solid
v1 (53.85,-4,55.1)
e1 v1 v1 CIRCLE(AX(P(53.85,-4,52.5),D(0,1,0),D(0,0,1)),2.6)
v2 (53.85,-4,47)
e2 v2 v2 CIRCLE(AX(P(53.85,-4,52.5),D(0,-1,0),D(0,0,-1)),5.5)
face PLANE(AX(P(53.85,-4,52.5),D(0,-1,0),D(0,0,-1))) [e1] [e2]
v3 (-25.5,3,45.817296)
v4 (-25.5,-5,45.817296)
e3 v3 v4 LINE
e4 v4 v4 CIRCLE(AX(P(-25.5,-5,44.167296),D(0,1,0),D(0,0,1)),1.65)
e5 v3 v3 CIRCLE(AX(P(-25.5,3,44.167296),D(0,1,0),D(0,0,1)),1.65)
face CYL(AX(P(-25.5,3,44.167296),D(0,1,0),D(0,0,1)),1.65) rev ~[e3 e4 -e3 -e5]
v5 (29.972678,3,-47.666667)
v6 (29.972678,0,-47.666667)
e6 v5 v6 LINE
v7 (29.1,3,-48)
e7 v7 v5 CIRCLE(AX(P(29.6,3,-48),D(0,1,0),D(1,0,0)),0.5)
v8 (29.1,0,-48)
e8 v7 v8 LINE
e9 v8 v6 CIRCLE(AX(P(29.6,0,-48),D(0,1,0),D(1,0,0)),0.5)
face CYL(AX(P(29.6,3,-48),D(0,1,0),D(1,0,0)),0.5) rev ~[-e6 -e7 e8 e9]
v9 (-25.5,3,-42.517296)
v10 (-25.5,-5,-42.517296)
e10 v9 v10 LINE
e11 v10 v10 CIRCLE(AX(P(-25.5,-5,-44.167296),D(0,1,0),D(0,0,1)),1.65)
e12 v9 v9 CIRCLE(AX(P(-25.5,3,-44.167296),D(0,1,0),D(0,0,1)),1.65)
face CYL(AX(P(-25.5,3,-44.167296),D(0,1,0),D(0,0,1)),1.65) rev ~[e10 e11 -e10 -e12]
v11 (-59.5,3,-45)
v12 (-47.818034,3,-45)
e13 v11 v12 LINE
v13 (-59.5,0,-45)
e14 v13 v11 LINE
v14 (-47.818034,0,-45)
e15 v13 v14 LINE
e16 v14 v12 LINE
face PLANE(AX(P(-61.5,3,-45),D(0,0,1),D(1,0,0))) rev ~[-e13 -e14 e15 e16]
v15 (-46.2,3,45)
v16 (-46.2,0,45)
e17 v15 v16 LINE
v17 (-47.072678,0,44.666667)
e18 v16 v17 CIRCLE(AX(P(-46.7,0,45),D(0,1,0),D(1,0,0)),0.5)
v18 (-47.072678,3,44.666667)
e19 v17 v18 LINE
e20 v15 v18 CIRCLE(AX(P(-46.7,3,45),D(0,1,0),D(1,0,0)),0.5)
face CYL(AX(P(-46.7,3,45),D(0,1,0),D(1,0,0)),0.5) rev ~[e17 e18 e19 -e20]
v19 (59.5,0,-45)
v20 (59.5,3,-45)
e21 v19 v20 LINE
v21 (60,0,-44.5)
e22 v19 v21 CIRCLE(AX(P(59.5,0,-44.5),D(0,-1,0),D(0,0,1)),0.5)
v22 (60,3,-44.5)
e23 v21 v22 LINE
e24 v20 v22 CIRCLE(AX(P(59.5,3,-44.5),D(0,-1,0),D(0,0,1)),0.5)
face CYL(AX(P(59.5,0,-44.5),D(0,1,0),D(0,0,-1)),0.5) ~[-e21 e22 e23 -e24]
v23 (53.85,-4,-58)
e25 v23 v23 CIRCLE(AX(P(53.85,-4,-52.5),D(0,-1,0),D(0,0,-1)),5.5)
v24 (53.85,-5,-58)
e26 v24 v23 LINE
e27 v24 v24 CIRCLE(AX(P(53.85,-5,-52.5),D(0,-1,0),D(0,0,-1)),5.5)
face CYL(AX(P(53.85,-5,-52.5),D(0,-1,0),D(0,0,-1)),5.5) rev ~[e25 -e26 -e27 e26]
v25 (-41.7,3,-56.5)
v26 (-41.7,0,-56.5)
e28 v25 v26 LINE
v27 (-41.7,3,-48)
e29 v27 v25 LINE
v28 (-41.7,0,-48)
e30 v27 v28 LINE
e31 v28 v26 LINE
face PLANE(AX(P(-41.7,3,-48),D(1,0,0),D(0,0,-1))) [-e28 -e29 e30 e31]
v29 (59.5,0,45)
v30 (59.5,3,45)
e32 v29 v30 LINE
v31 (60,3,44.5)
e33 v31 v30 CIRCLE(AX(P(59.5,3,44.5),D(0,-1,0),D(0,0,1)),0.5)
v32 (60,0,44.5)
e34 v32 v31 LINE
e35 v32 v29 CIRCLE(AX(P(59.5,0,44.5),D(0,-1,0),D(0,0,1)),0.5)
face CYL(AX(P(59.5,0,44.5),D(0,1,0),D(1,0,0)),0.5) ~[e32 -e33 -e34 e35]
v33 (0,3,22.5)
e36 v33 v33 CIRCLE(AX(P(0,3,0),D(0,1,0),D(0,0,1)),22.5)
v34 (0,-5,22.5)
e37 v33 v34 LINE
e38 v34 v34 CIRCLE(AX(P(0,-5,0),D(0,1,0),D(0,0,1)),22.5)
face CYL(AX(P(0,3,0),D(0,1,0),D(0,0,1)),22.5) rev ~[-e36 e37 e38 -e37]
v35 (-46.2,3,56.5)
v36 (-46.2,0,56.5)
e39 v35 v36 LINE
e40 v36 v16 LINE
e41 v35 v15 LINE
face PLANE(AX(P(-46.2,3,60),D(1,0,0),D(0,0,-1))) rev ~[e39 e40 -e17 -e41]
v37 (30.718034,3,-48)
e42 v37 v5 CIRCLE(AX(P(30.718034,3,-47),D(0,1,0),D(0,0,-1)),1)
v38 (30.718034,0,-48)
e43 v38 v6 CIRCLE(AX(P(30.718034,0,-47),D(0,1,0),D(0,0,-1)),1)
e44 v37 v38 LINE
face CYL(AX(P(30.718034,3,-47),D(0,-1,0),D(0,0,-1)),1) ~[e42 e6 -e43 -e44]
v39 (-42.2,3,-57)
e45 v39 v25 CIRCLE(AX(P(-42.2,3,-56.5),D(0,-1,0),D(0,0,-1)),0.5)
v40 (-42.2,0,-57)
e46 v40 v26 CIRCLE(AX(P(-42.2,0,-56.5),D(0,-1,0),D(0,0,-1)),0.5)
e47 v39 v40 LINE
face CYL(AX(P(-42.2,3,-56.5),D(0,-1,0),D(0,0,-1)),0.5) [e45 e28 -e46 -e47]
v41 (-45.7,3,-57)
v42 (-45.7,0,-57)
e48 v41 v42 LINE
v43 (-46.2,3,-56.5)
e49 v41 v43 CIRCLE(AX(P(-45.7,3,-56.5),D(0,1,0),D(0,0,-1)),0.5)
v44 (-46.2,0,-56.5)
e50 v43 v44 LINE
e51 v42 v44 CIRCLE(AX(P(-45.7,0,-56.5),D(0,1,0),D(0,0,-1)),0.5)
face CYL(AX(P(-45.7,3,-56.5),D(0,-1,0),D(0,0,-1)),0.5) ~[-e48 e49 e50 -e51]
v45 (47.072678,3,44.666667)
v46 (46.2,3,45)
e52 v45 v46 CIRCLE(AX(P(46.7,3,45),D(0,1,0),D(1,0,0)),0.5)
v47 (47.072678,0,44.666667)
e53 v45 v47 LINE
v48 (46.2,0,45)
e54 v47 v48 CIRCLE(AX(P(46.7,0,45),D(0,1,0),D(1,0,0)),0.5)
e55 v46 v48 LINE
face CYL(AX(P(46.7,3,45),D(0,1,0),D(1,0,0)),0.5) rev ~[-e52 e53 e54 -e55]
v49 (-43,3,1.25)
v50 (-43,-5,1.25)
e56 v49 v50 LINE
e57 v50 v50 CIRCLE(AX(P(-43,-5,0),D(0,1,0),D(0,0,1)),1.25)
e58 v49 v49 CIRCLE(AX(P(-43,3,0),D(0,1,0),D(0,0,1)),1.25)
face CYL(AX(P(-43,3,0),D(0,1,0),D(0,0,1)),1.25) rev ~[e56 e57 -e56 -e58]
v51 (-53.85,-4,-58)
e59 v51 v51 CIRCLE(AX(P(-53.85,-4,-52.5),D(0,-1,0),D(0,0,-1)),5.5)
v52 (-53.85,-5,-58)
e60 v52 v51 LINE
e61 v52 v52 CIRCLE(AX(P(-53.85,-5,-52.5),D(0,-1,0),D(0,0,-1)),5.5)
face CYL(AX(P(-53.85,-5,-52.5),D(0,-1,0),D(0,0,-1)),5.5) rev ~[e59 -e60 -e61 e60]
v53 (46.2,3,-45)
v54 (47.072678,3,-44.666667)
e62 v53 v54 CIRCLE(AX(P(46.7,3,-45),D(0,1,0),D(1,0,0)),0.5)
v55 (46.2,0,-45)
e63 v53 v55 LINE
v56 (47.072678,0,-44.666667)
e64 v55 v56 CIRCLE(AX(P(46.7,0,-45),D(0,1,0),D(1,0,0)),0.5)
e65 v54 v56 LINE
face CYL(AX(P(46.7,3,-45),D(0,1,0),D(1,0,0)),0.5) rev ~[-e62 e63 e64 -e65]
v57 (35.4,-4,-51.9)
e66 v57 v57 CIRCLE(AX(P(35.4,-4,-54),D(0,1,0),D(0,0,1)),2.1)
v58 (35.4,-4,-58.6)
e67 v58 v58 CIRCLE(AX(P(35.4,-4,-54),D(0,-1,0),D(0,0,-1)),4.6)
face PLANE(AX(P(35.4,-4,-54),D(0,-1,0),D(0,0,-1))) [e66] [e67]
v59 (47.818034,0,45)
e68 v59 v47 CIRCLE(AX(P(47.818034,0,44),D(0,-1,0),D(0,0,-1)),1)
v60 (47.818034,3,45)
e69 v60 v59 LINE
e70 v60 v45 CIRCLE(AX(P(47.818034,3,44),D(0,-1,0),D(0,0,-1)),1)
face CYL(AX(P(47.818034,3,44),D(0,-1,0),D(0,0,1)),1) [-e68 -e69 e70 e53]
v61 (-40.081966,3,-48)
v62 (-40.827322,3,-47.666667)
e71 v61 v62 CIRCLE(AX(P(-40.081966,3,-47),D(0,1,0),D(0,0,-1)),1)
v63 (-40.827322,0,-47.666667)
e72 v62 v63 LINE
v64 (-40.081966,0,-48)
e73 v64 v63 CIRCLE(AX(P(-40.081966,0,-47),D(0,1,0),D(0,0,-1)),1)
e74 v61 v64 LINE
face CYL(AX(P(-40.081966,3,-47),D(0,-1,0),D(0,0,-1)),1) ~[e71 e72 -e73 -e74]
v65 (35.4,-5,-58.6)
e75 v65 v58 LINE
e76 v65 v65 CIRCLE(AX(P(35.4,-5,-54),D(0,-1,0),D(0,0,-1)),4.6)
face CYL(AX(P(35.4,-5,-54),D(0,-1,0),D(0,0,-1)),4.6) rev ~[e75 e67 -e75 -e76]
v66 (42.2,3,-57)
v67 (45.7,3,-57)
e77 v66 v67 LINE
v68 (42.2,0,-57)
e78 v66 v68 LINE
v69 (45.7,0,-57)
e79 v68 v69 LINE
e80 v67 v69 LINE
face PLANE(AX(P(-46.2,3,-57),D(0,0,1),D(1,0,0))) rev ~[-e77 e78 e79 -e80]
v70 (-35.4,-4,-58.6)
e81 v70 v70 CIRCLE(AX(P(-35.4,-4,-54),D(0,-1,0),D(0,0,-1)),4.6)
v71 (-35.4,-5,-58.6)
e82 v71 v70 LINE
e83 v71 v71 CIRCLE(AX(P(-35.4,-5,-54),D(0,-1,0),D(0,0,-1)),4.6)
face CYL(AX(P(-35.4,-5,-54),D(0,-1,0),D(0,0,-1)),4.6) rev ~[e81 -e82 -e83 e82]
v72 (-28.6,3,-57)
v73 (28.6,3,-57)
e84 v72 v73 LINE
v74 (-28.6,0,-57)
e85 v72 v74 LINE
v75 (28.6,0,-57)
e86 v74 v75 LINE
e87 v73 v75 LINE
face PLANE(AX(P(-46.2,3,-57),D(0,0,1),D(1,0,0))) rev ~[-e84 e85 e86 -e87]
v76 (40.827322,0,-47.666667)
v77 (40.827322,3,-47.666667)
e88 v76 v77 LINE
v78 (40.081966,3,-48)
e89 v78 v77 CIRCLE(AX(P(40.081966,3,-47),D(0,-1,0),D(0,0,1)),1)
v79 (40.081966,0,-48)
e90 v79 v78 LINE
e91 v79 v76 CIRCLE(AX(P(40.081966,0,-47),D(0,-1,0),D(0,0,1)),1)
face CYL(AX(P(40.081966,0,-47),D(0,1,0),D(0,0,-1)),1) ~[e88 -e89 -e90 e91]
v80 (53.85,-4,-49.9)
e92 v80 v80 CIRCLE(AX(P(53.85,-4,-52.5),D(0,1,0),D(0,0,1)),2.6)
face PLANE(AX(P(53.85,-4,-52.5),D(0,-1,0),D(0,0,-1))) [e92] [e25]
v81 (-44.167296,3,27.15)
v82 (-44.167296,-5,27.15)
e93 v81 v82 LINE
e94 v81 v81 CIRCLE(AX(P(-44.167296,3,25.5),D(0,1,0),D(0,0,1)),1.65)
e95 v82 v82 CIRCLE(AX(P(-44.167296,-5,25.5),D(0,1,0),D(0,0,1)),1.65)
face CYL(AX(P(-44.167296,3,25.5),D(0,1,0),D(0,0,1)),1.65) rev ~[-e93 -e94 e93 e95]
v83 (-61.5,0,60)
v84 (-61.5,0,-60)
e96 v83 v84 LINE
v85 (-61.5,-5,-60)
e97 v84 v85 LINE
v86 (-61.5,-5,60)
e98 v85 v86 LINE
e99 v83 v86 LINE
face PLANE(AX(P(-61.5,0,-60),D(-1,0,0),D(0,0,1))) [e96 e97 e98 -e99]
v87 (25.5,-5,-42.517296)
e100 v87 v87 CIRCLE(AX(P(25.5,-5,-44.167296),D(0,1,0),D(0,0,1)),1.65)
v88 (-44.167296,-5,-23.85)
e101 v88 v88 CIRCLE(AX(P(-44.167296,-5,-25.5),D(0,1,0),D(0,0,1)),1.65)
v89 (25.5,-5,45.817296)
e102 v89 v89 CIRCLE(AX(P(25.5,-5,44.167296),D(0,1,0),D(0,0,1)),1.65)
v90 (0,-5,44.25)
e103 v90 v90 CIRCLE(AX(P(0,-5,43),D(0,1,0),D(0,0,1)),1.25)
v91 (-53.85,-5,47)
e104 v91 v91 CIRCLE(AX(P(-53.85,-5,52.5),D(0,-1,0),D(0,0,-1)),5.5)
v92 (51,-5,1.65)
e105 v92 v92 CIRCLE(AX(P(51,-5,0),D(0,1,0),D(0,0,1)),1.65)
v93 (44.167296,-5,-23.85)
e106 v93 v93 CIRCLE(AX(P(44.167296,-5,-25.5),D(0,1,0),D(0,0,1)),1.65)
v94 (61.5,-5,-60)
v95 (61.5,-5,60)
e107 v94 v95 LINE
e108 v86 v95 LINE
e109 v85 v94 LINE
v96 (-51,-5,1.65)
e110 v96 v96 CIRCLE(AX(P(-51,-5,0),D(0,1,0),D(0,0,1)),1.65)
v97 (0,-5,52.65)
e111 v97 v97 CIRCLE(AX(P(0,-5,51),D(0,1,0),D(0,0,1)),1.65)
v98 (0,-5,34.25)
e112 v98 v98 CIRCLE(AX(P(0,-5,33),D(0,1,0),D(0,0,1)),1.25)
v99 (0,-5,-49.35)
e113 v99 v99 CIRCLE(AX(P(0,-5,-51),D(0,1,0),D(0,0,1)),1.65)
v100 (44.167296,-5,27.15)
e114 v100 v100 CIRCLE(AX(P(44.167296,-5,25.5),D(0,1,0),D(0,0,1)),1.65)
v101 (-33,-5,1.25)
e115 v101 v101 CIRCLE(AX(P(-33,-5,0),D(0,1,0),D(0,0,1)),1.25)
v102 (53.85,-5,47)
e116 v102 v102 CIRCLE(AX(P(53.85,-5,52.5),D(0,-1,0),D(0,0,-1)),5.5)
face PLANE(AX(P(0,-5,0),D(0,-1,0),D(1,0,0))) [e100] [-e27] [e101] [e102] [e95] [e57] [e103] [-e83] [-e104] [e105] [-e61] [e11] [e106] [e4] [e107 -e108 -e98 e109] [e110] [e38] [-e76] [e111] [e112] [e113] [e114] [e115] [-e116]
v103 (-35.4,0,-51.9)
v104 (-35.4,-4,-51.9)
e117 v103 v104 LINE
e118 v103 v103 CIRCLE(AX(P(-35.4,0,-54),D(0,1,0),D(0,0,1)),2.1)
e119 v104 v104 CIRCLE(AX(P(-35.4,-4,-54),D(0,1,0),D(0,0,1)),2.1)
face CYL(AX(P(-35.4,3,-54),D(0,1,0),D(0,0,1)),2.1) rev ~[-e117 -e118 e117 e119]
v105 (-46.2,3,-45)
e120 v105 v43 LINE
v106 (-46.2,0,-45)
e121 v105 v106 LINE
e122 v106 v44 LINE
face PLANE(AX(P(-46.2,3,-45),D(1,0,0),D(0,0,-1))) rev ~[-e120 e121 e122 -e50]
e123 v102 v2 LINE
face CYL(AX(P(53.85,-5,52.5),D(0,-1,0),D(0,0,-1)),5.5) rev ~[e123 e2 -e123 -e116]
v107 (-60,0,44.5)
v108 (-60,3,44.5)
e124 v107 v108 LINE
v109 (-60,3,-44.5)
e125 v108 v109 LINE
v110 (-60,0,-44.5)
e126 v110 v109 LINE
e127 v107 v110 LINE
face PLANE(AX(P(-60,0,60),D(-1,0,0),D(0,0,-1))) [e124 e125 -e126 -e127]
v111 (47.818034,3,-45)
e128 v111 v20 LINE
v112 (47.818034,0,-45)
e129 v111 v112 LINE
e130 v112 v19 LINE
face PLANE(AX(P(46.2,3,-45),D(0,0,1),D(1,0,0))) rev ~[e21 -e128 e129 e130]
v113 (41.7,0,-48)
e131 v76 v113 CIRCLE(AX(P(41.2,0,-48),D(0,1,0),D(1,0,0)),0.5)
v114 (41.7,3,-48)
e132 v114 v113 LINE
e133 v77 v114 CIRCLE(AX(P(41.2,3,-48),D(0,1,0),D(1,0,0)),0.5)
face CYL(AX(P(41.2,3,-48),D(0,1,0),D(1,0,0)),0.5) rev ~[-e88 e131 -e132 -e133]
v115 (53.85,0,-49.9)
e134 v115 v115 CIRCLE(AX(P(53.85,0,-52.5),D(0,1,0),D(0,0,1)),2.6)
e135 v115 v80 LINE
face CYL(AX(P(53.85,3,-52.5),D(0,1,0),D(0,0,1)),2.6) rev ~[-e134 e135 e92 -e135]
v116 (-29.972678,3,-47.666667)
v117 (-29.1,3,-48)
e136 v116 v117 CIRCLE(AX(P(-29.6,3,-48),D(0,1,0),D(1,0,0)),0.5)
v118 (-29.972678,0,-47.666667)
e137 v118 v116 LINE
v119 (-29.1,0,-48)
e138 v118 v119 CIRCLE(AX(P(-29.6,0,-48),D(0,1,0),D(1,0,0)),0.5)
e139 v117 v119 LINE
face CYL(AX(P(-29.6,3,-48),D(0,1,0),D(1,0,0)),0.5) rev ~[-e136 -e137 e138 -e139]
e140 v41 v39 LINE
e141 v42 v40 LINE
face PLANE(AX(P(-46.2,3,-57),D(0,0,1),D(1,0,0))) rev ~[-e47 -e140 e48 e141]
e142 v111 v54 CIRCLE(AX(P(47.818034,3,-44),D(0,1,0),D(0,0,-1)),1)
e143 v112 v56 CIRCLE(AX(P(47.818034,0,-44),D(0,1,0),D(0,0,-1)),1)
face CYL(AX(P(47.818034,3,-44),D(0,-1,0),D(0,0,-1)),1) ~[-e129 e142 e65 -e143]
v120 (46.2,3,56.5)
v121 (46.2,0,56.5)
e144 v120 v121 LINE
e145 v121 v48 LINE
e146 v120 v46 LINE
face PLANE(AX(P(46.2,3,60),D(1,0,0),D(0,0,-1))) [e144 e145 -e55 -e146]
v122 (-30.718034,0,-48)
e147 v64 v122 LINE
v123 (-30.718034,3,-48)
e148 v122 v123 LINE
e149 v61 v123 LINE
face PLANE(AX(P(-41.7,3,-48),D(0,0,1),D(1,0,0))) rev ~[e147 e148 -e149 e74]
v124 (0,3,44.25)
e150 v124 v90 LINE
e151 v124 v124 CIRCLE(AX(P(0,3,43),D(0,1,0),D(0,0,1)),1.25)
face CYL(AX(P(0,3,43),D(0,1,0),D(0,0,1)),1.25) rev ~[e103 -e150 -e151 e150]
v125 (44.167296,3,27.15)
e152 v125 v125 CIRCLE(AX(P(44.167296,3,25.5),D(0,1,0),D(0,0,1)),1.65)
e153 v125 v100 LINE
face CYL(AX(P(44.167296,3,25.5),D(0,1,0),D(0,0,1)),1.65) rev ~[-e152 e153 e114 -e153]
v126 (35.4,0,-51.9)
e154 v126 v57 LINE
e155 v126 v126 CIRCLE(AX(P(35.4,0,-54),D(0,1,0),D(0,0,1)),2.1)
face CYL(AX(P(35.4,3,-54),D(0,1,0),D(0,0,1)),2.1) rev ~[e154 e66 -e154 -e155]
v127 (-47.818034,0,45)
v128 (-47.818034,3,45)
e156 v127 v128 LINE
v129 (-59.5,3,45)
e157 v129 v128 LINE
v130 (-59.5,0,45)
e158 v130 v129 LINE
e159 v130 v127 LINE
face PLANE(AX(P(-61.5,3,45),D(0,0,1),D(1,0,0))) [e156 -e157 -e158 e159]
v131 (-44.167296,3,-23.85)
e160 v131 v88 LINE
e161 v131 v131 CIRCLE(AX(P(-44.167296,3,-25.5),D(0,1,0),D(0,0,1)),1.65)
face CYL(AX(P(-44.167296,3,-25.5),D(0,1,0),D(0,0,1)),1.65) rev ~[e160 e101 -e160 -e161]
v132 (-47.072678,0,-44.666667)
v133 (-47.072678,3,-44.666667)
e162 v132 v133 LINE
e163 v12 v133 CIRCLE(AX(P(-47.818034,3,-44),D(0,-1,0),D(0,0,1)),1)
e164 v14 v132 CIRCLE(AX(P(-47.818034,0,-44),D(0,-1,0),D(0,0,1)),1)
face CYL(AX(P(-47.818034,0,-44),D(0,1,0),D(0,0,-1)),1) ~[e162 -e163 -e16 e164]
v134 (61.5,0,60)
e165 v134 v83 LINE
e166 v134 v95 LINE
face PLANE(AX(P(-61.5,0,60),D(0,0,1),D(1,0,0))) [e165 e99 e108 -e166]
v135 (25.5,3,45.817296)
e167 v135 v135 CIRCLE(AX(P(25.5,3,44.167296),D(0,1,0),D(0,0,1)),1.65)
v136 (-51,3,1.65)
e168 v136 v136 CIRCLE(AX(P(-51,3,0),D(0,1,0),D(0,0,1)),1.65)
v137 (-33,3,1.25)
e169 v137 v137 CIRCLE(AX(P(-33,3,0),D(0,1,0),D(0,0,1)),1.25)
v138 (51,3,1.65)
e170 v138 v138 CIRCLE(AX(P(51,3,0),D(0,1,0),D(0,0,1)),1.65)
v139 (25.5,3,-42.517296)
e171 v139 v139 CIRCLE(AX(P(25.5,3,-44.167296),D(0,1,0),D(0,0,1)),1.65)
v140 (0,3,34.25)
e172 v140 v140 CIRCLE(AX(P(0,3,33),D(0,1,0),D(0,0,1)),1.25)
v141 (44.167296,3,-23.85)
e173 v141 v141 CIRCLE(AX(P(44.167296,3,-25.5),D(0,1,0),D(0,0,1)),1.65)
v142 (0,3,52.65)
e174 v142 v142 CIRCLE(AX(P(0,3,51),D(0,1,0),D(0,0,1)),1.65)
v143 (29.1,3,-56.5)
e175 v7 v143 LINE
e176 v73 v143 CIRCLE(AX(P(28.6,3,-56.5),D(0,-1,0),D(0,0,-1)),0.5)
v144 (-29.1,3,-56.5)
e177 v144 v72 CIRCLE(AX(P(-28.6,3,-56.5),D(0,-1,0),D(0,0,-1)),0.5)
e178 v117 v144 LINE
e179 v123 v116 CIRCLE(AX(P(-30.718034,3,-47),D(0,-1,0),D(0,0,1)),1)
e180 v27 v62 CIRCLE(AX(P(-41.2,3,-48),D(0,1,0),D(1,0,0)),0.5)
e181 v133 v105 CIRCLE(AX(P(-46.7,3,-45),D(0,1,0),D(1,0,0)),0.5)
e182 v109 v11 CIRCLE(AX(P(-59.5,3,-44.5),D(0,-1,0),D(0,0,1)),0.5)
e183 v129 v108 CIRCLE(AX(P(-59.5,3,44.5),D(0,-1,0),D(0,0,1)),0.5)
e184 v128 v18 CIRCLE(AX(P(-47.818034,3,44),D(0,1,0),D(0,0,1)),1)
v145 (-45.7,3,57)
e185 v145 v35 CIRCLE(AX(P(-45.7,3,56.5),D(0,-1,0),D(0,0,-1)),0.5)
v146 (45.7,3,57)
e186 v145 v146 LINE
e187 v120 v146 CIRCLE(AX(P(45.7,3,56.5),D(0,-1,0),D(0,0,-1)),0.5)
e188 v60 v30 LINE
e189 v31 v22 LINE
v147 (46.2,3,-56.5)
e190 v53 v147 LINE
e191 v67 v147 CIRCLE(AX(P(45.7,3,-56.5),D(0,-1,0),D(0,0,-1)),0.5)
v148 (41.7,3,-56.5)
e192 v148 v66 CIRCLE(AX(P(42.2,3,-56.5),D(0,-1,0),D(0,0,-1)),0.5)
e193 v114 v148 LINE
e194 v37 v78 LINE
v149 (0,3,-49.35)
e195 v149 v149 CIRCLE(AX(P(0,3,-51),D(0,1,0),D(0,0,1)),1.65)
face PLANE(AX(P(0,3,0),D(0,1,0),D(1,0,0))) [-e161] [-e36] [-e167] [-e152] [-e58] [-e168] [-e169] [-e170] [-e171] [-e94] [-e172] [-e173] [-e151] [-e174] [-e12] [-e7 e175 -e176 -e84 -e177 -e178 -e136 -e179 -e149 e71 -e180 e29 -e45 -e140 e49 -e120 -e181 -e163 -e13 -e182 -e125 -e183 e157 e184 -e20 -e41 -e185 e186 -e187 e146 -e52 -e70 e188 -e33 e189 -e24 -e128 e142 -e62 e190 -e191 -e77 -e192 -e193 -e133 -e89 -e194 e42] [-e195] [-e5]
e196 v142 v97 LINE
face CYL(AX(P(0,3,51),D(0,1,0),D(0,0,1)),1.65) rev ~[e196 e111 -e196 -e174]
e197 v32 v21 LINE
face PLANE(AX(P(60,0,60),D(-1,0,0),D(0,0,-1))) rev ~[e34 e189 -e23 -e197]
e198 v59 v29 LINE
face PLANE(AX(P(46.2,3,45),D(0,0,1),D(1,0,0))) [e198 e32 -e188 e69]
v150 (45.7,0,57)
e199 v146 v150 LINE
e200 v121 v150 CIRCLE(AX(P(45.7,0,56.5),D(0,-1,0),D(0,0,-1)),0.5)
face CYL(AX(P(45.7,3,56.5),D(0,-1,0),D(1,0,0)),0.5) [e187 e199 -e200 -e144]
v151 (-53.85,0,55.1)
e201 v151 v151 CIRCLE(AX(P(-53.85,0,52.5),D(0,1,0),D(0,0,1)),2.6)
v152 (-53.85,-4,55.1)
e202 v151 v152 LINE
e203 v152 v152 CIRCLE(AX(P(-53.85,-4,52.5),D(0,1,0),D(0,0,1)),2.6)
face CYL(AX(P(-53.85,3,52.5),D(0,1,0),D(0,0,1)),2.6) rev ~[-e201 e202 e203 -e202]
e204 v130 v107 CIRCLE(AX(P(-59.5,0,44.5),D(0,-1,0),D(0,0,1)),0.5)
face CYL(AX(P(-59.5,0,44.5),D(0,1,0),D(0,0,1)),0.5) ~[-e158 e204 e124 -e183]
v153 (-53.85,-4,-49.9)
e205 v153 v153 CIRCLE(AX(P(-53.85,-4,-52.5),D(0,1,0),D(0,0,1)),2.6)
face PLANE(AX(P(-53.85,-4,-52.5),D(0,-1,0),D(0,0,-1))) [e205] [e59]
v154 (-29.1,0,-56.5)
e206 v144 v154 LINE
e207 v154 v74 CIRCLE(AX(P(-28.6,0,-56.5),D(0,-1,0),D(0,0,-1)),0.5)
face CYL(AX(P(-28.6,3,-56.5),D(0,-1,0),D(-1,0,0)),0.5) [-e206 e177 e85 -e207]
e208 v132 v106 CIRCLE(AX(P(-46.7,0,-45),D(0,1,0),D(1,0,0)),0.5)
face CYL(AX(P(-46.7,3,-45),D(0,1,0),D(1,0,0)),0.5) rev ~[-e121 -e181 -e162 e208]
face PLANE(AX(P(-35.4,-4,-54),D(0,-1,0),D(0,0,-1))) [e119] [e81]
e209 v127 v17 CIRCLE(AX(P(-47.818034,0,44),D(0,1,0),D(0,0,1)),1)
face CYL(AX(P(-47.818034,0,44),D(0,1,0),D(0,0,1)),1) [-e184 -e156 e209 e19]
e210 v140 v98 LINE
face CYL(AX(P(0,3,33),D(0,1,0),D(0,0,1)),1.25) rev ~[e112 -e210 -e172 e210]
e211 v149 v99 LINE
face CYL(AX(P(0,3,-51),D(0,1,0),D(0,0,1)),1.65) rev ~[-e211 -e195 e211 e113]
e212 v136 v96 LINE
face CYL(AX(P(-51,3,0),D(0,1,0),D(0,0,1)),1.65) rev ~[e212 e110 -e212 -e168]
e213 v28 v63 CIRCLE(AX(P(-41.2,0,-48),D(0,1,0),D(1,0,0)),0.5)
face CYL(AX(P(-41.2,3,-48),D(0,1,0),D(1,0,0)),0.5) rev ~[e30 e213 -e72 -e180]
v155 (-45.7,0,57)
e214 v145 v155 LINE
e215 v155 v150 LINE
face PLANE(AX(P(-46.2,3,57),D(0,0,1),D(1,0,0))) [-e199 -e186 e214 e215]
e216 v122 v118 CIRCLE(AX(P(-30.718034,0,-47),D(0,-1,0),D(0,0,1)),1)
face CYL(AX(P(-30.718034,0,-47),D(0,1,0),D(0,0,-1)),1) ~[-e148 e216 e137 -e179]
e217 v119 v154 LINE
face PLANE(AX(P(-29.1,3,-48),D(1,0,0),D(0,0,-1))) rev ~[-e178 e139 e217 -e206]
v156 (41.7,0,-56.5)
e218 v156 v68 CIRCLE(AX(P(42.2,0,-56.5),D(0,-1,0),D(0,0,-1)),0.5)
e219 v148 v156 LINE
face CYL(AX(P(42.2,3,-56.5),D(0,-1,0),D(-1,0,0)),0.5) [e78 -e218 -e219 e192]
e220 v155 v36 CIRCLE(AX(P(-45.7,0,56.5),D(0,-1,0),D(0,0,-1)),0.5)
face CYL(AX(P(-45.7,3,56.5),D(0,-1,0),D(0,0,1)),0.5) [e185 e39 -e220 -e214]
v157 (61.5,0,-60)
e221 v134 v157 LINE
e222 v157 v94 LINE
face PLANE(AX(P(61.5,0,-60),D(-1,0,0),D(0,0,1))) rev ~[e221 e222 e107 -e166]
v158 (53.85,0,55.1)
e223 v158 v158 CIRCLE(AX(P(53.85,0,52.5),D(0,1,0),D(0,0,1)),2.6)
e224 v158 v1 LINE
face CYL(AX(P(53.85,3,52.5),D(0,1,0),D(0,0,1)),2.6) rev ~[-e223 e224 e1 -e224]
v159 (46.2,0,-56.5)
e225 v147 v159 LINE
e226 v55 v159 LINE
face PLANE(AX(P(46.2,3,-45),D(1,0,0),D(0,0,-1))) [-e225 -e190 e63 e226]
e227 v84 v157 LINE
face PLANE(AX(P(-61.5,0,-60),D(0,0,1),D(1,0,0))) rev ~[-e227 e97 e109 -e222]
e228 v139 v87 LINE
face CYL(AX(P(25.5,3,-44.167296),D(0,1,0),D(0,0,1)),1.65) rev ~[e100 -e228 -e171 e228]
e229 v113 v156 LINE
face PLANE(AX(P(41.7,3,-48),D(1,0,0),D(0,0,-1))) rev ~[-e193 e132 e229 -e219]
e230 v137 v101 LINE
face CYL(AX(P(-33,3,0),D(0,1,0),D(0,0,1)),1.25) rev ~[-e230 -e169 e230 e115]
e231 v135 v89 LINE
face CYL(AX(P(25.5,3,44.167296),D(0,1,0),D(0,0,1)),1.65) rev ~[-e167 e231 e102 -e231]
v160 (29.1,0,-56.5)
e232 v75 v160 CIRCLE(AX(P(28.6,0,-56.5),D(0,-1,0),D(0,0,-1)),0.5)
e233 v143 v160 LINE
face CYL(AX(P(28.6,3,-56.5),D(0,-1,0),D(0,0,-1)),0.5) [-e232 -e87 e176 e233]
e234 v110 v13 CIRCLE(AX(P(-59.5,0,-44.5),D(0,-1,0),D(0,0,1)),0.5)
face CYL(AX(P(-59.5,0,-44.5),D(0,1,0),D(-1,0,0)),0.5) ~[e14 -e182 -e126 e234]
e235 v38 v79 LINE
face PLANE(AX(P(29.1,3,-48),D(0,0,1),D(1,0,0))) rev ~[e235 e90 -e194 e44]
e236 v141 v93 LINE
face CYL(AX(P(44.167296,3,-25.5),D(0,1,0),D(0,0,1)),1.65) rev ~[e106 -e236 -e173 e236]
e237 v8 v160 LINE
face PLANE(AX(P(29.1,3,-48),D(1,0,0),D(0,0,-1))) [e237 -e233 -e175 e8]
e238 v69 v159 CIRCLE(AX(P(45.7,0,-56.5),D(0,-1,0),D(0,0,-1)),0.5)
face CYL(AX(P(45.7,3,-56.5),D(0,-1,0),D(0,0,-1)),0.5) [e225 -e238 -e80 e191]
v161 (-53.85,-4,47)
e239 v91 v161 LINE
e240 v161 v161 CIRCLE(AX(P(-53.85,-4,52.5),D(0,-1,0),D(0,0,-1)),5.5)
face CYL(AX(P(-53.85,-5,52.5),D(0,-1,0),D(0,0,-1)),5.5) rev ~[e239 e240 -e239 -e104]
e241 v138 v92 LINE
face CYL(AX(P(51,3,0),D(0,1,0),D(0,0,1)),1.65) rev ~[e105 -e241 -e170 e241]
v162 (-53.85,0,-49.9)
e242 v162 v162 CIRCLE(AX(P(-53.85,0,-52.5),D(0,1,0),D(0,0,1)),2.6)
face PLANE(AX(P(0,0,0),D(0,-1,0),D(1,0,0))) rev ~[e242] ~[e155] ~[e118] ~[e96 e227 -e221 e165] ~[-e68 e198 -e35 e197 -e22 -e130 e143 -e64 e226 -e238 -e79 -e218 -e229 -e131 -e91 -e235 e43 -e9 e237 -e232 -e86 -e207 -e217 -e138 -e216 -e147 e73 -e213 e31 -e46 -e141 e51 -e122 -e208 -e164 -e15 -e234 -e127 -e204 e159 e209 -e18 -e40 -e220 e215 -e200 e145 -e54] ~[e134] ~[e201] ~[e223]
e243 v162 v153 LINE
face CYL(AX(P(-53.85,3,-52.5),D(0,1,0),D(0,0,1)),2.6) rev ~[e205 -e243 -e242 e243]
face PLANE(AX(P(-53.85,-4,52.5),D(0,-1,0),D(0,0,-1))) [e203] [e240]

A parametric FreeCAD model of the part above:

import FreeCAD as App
import Part
import Sketcher

V = App.Vector


def edges_at(feature, points):
    """Names of the edges that pass closest to the given points."""
    edges = feature.Shape.Edges
    near = lambda p: min(range(len(edges)), key=lambda i: edges[i].distToShape(Part.Vertex(*p))[0])
    return sorted({f"Edge{near(p) + 1}" for p in points})

doc = App.newDocument("Part")
params = doc.addObject("Spreadsheet::Sheet", "Params")
for row, (alias, value) in enumerate([
    ("sketch1_width", "120 mm"),
    ("pad1_length", "3 mm"),
    ("sketch2_width", "123 mm"),
    ("sketch2_height", "120 mm"),
    ("pad2_length", "5 mm"),
    ("sketch3_diameter", "3.3 mm"),
    ("sketch4_height", "15 mm"),
    ("sketch4_height2", "12 mm"),
    ("sketch4_width", "15.3 mm"),
    ("sketch4_width2", "12.6 mm"),
    ("pocket2_length", "3 mm"),
    ("sketch5_diameter", "5.2 mm"),
    ("sketch5_diameter2", "4.2 mm"),
    ("sketch6_diameter", "11 mm"),
    ("sketch6_diameter2", "9.2 mm"),
    ("pocket4_length", "1 mm"),
    ("sketch7_diameter", "45 mm"),
    ("sketch8_diameter", "2.5 mm"),
    ("sketch9_height", "3 mm"),
    ("sketch9_width", "92.4 mm"),
    ("pocket7_length", "3 mm"),
    ("fillet_radius", "0.5 mm"),
    ("sketch10_diameter", "1 mm"),
    ("pocket8_length", "3 mm"),
    ("fillet2_radius", "1 mm"),
], start=1):
    params.set(f"A{row}", alias)
    params.set(f"B{row}", "=" + value)
    params.setAlias(f"B{row}", alias)

body = doc.addObject("PartDesign::Body", "Body")

sketch1 = body.newObject("Sketcher::SketchObject", "Sketch")
sketch1.AttachmentSupport = (doc.getObject("XZ_Plane"), [""])
sketch1.MapMode = "FlatFace"
sketch1.addGeometry(Part.LineSegment(V(-60, -60, 0), V(-60, 60, 0)), False)
sketch1.addGeometry(Part.LineSegment(V(-60, 60, 0), V(60, 60, 0)), False)
sketch1.addGeometry(Part.LineSegment(V(60, 60, 0), V(60, -60, 0)), False)
sketch1.addGeometry(Part.LineSegment(V(60, -60, 0), V(-60, -60, 0)), False)
sketch1.addConstraint(Sketcher.Constraint("Coincident", 0, 2, 1, 1))
sketch1.addConstraint(Sketcher.Constraint("Coincident", 1, 2, 2, 1))
sketch1.addConstraint(Sketcher.Constraint("Coincident", 2, 2, 3, 1))
sketch1.addConstraint(Sketcher.Constraint("Coincident", 3, 2, 0, 1))
sketch1.addConstraint(Sketcher.Constraint("Vertical", 0))
sketch1.addConstraint(Sketcher.Constraint("Horizontal", 1))
sketch1.addConstraint(Sketcher.Constraint("Vertical", 2))
sketch1.addConstraint(Sketcher.Constraint("Horizontal", 3))
sketch1.addConstraint(Sketcher.Constraint("Symmetric", 0, 2, 2, 2, -1, 1))
sketch1.addConstraint(Sketcher.Constraint("Equal", 3, 0))
sketch1.addConstraint(Sketcher.Constraint("DistanceX", 1, 1, 1, 2, 120.0))
sketch1.setExpression("Constraints[10]", "Params.sketch1_width")
pad1 = body.newObject("PartDesign::Pad", "Pad")
pad1.Profile = sketch1
pad1.setExpression("Length", "Params.pad1_length")
pad1.Reversed = True

sketch2 = body.newObject("Sketcher::SketchObject", "Sketch001")
sketch2.AttachmentSupport = (doc.getObject("XZ_Plane"), [""])
sketch2.MapMode = "FlatFace"
sketch2.addGeometry(Part.LineSegment(V(-62, 60, 0), V(-62, -60, 0)), False)
sketch2.addGeometry(Part.LineSegment(V(-62, -60, 0), V(62, -60, 0)), False)
sketch2.addGeometry(Part.LineSegment(V(62, -60, 0), V(62, 60, 0)), False)
sketch2.addGeometry(Part.LineSegment(V(62, 60, 0), V(-62, 60, 0)), False)
sketch2.addConstraint(Sketcher.Constraint("Coincident", 0, 2, 1, 1))
sketch2.addConstraint(Sketcher.Constraint("Coincident", 1, 2, 2, 1))
sketch2.addConstraint(Sketcher.Constraint("Coincident", 2, 2, 3, 1))
sketch2.addConstraint(Sketcher.Constraint("Coincident", 3, 2, 0, 1))
sketch2.addConstraint(Sketcher.Constraint("Vertical", 0))
sketch2.addConstraint(Sketcher.Constraint("Horizontal", 1))
sketch2.addConstraint(Sketcher.Constraint("Vertical", 2))
sketch2.addConstraint(Sketcher.Constraint("Horizontal", 3))
sketch2.addConstraint(Sketcher.Constraint("Symmetric", 0, 2, 2, 2, -1, 1))
sketch2.addConstraint(Sketcher.Constraint("DistanceX", 1, 1, 1, 2, 123.0))
sketch2.addConstraint(Sketcher.Constraint("DistanceY", 0, 2, 0, 1, 120.0))
sketch2.setExpression("Constraints[9]", "Params.sketch2_width")
sketch2.setExpression("Constraints[10]", "Params.sketch2_height")
pad2 = body.newObject("PartDesign::Pad", "Pad001")
pad2.Profile = sketch2
pad2.setExpression("Length", "Params.pad2_length")

sketch3 = body.newObject("Sketcher::SketchObject", "Sketch002")
sketch3.AttachmentSupport = (doc.getObject("XZ_Plane"), [""])
sketch3.MapMode = "FlatFace"
sketch3.AttachmentOffset = App.Placement(V(0, 0, -3), App.Rotation())
sketch3.addGeometry(Part.Circle(V(-51, 0, 0), V(0, 0, 1), 1.6), False)
sketch3.addGeometry(Part.Circle(V(-44.2, 25.5, 0), V(0, 0, 1), 1.6), False)
sketch3.addGeometry(Part.Circle(V(-25.5, 44.2, 0), V(0, 0, 1), 1.6), False)
sketch3.addGeometry(Part.Circle(V(0, 51, 0), V(0, 0, 1), 1.6), False)
sketch3.addGeometry(Part.Circle(V(25.5, 44.2, 0), V(0, 0, 1), 1.6), False)
sketch3.addGeometry(Part.Circle(V(44.2, 25.5, 0), V(0, 0, 1), 1.6), False)
sketch3.addGeometry(Part.Circle(V(-25.5, -44.2, 0), V(0, 0, 1), 1.6), False)
sketch3.addGeometry(Part.Circle(V(-44.2, -25.5, 0), V(0, 0, 1), 1.6), False)
sketch3.addGeometry(Part.Circle(V(0, -51, 0), V(0, 0, 1), 1.6), False)
sketch3.addGeometry(Part.Circle(V(25.5, -44.2, 0), V(0, 0, 1), 1.6), False)
sketch3.addGeometry(Part.Circle(V(44.2, -25.5, 0), V(0, 0, 1), 1.6), False)
sketch3.addGeometry(Part.Circle(V(51, 0, 0), V(0, 0, 1), 1.6), False)
sketch3.addConstraint(Sketcher.Constraint("Equal", 0, 1))
sketch3.addConstraint(Sketcher.Constraint("Equal", 1, 2))
sketch3.addConstraint(Sketcher.Constraint("Equal", 2, 3))
sketch3.addConstraint(Sketcher.Constraint("Equal", 3, 4))
sketch3.addConstraint(Sketcher.Constraint("Equal", 4, 5))
sketch3.addConstraint(Sketcher.Constraint("Equal", 5, 6))
sketch3.addConstraint(Sketcher.Constraint("Equal", 6, 7))
sketch3.addConstraint(Sketcher.Constraint("Equal", 7, 8))
sketch3.addConstraint(Sketcher.Constraint("Equal", 8, 9))
sketch3.addConstraint(Sketcher.Constraint("Equal", 9, 10))
sketch3.addConstraint(Sketcher.Constraint("Equal", 10, 11))
sketch3.addConstraint(Sketcher.Constraint("Symmetric", 4, 3, 6, 3, -1, 1))
sketch3.addConstraint(Sketcher.Constraint("Symmetric", 5, 3, 7, 3, -1, 1))
sketch3.addConstraint(Sketcher.Constraint("Symmetric", 3, 3, 8, 3, -1, 1))
sketch3.addConstraint(Sketcher.Constraint("Symmetric", 2, 3, 9, 3, -1, 1))
sketch3.addConstraint(Sketcher.Constraint("Symmetric", 1, 3, 10, 3, -1, 1))
sketch3.addConstraint(Sketcher.Constraint("Symmetric", 0, 3, 11, 3, -1, 1))
sketch3.addConstraint(Sketcher.Constraint("Symmetric", 2, 3, 4, 3, -2))
sketch3.addConstraint(Sketcher.Constraint("Symmetric", 1, 3, 5, 3, -2))
sketch3.addConstraint(Sketcher.Constraint("PointOnObject", 0, 3, -1))
sketch3.addConstraint(Sketcher.Constraint("PointOnObject", 3, 3, -2))
sketch3.addConstraint(Sketcher.Constraint("Diameter", 0, 3.3))
sketch3.addConstraint(Sketcher.Constraint("DistanceX", 0, 3, -1, 1, 51.0))
sketch3.addConstraint(Sketcher.Constraint("DistanceY", -1, 1, 3, 3, 51.0))
sketch3.addConstraint(Sketcher.Constraint("DistanceX", 2, 3, 4, 3, 51.0))
sketch3.addConstraint(Sketcher.Constraint("DistanceY", 7, 3, 1, 3, 51.0))
sketch3.addConstraint(Sketcher.Constraint("DistanceX", 1, 3, 5, 3, 88.334591))
sketch3.addConstraint(Sketcher.Constraint("DistanceY", 6, 3, 2, 3, 88.334591))
sketch3.setExpression("Constraints[21]", "Params.sketch3_diameter")
pocket1 = body.newObject("PartDesign::Pocket", "Pocket")
pocket1.Profile = sketch3
pocket1.Type = "ThroughAll"
pocket1.Reversed = True

sketch4 = body.newObject("Sketcher::SketchObject", "Sketch003")
sketch4.AttachmentSupport = (doc.getObject("XZ_Plane"), [""])
sketch4.MapMode = "FlatFace"
sketch4.AttachmentOffset = App.Placement(V(0, 0, -3), App.Rotation())
sketch4.addGeometry(Part.LineSegment(V(-62, -60, 0), V(-62, -45, 0)), False)
sketch4.addGeometry(Part.LineSegment(V(-62, -45, 0), V(-46, -45, 0)), False)
sketch4.addGeometry(Part.LineSegment(V(-46, -45, 0), V(-46, -60, 0)), False)
sketch4.addGeometry(Part.LineSegment(V(-46, -60, 0), V(-62, -60, 0)), False)
sketch4.addGeometry(Part.LineSegment(V(46, -60, 0), V(46, -45, 0)), False)
sketch4.addGeometry(Part.LineSegment(V(46, -45, 0), V(62, -45, 0)), False)
sketch4.addGeometry(Part.LineSegment(V(62, -45, 0), V(62, -60, 0)), False)
sketch4.addGeometry(Part.LineSegment(V(62, -60, 0), V(46, -60, 0)), False)
sketch4.addGeometry(Part.LineSegment(V(-42, -60, 0), V(-42, -48, 0)), False)
sketch4.addGeometry(Part.LineSegment(V(-42, -48, 0), V(-29, -48, 0)), False)
sketch4.addGeometry(Part.LineSegment(V(-29, -48, 0), V(-29, -60, 0)), False)
sketch4.addGeometry(Part.LineSegment(V(-29, -60, 0), V(-42, -60, 0)), False)
sketch4.addGeometry(Part.LineSegment(V(29, -60, 0), V(29, -48, 0)), False)
sketch4.addGeometry(Part.LineSegment(V(29, -48, 0), V(42, -48, 0)), False)
sketch4.addGeometry(Part.LineSegment(V(42, -48, 0), V(42, -60, 0)), False)
sketch4.addGeometry(Part.LineSegment(V(42, -60, 0), V(29, -60, 0)), False)
sketch4.addGeometry(Part.LineSegment(V(-62, 45, 0), V(-62, 60, 0)), False)
sketch4.addGeometry(Part.LineSegment(V(-62, 60, 0), V(-46, 60, 0)), False)
sketch4.addGeometry(Part.LineSegment(V(-46, 60, 0), V(-46, 45, 0)), False)
sketch4.addGeometry(Part.LineSegment(V(-46, 45, 0), V(-62, 45, 0)), False)
sketch4.addGeometry(Part.LineSegment(V(46, 45, 0), V(46, 60, 0)), False)
sketch4.addGeometry(Part.LineSegment(V(46, 60, 0), V(62, 60, 0)), False)
sketch4.addGeometry(Part.LineSegment(V(62, 60, 0), V(62, 45, 0)), False)
sketch4.addGeometry(Part.LineSegment(V(62, 45, 0), V(46, 45, 0)), False)
sketch4.addConstraint(Sketcher.Constraint("Coincident", 0, 2, 1, 1))
sketch4.addConstraint(Sketcher.Constraint("Coincident", 1, 2, 2, 1))
sketch4.addConstraint(Sketcher.Constraint("Coincident", 2, 2, 3, 1))
sketch4.addConstraint(Sketcher.Constraint("Coincident", 3, 2, 0, 1))
sketch4.addConstraint(Sketcher.Constraint("Coincident", 4, 2, 5, 1))
sketch4.addConstraint(Sketcher.Constraint("Coincident", 5, 2, 6, 1))
sketch4.addConstraint(Sketcher.Constraint("Coincident", 6, 2, 7, 1))
sketch4.addConstraint(Sketcher.Constraint("Coincident", 7, 2, 4, 1))
sketch4.addConstraint(Sketcher.Constraint("Coincident", 8, 2, 9, 1))
sketch4.addConstraint(Sketcher.Constraint("Coincident", 9, 2, 10, 1))
sketch4.addConstraint(Sketcher.Constraint("Coincident", 10, 2, 11, 1))
sketch4.addConstraint(Sketcher.Constraint("Coincident", 11, 2, 8, 1))
sketch4.addConstraint(Sketcher.Constraint("Coincident", 12, 2, 13, 1))
sketch4.addConstraint(Sketcher.Constraint("Coincident", 13, 2, 14, 1))
sketch4.addConstraint(Sketcher.Constraint("Coincident", 14, 2, 15, 1))
sketch4.addConstraint(Sketcher.Constraint("Coincident", 15, 2, 12, 1))
sketch4.addConstraint(Sketcher.Constraint("Coincident", 16, 2, 17, 1))
sketch4.addConstraint(Sketcher.Constraint("Coincident", 17, 2, 18, 1))
sketch4.addConstraint(Sketcher.Constraint("Coincident", 18, 2, 19, 1))
sketch4.addConstraint(Sketcher.Constraint("Coincident", 19, 2, 16, 1))
sketch4.addConstraint(Sketcher.Constraint("Coincident", 20, 2, 21, 1))
sketch4.addConstraint(Sketcher.Constraint("Coincident", 21, 2, 22, 1))
sketch4.addConstraint(Sketcher.Constraint("Coincident", 22, 2, 23, 1))
sketch4.addConstraint(Sketcher.Constraint("Coincident", 23, 2, 20, 1))
sketch4.addConstraint(Sketcher.Constraint("Vertical", 0))
sketch4.addConstraint(Sketcher.Constraint("Horizontal", 1))
sketch4.addConstraint(Sketcher.Constraint("Vertical", 2))
sketch4.addConstraint(Sketcher.Constraint("Horizontal", 3))
sketch4.addConstraint(Sketcher.Constraint("Vertical", 4))
sketch4.addConstraint(Sketcher.Constraint("Horizontal", 5))
sketch4.addConstraint(Sketcher.Constraint("Vertical", 6))
sketch4.addConstraint(Sketcher.Constraint("Horizontal", 7))
sketch4.addConstraint(Sketcher.Constraint("Vertical", 8))
sketch4.addConstraint(Sketcher.Constraint("Horizontal", 9))
sketch4.addConstraint(Sketcher.Constraint("Vertical", 10))
sketch4.addConstraint(Sketcher.Constraint("Horizontal", 11))
sketch4.addConstraint(Sketcher.Constraint("Vertical", 12))
sketch4.addConstraint(Sketcher.Constraint("Horizontal", 13))
sketch4.addConstraint(Sketcher.Constraint("Vertical", 14))
sketch4.addConstraint(Sketcher.Constraint("Horizontal", 15))
sketch4.addConstraint(Sketcher.Constraint("Vertical", 16))
sketch4.addConstraint(Sketcher.Constraint("Horizontal", 17))
sketch4.addConstraint(Sketcher.Constraint("Vertical", 18))
sketch4.addConstraint(Sketcher.Constraint("Horizontal", 19))
sketch4.addConstraint(Sketcher.Constraint("Vertical", 20))
sketch4.addConstraint(Sketcher.Constraint("Horizontal", 21))
sketch4.addConstraint(Sketcher.Constraint("Vertical", 22))
sketch4.addConstraint(Sketcher.Constraint("Horizontal", 23))
sketch4.addConstraint(Sketcher.Constraint("Symmetric", 6, 2, 16, 2, -1, 1))
sketch4.addConstraint(Sketcher.Constraint("Symmetric", 4, 2, 18, 2, -1, 1))
sketch4.addConstraint(Sketcher.Constraint("Symmetric", 2, 2, 20, 2, -1, 1))
sketch4.addConstraint(Sketcher.Constraint("Symmetric", 0, 2, 22, 2, -1, 1))
sketch4.addConstraint(Sketcher.Constraint("Symmetric", 1, 2, 4, 2, -2))
sketch4.addConstraint(Sketcher.Constraint("Symmetric", 3, 2, 6, 2, -2))
sketch4.addConstraint(Sketcher.Constraint("Symmetric", 9, 2, 12, 2, -2))
sketch4.addConstraint(Sketcher.Constraint("Symmetric", 11, 2, 14, 2, -2))
sketch4.addConstraint(Sketcher.Constraint("Horizontal", 7, 2, 10, 2))
sketch4.addConstraint(Sketcher.Constraint("DistanceY", 0, 1, 0, 2, 15.0))
sketch4.addConstraint(Sketcher.Constraint("DistanceY", 8, 1, 8, 2, 12.0))
sketch4.addConstraint(Sketcher.Constraint("DistanceX", 1, 1, 1, 2, 15.3))
sketch4.addConstraint(Sketcher.Constraint("DistanceX", 9, 1, 9, 2, 12.6))
sketch4.addConstraint(Sketcher.Constraint("DistanceY", 0, 2, -1, 1, 45.0))
sketch4.addConstraint(Sketcher.Constraint("DistanceX", 0, 2, 5, 2, 123.0))
sketch4.addConstraint(Sketcher.Constraint("DistanceX", 8, 2, -1, 1, 41.7))
sketch4.setExpression("Constraints[57]", "Params.sketch4_height")
sketch4.setExpression("Constraints[58]", "Params.sketch4_height2")
sketch4.setExpression("Constraints[59]", "Params.sketch4_width")
sketch4.setExpression("Constraints[60]", "Params.sketch4_width2")
pocket2 = body.newObject("PartDesign::Pocket", "Pocket001")
pocket2.Profile = sketch4
pocket2.setExpression("Length", "Params.pocket2_length")
pocket2.Reversed = True

sketch5 = body.newObject("Sketcher::SketchObject", "Sketch004")
sketch5.AttachmentSupport = (doc.getObject("XZ_Plane"), [""])
sketch5.MapMode = "FlatFace"
sketch5.AttachmentOffset = App.Placement(V(0, 0, -3), App.Rotation())
sketch5.addGeometry(Part.Circle(V(-53.9, 52.5, 0), V(0, 0, 1), 2.6), False)
sketch5.addGeometry(Part.Circle(V(53.9, 52.5, 0), V(0, 0, 1), 2.6), False)
sketch5.addGeometry(Part.Circle(V(-53.9, -52.5, 0), V(0, 0, 1), 2.6), False)
sketch5.addGeometry(Part.Circle(V(-35.4, -54, 0), V(0, 0, 1), 2.1), False)
sketch5.addGeometry(Part.Circle(V(53.9, -52.5, 0), V(0, 0, 1), 2.6), False)
sketch5.addGeometry(Part.Circle(V(35.4, -54, 0), V(0, 0, 1), 2.1), False)
sketch5.addConstraint(Sketcher.Constraint("Equal", 0, 1))
sketch5.addConstraint(Sketcher.Constraint("Equal", 1, 2))
sketch5.addConstraint(Sketcher.Constraint("Equal", 2, 4))
sketch5.addConstraint(Sketcher.Constraint("Equal", 3, 5))
sketch5.addConstraint(Sketcher.Constraint("Symmetric", 1, 3, 2, 3, -1, 1))
sketch5.addConstraint(Sketcher.Constraint("Symmetric", 0, 3, 4, 3, -1, 1))
sketch5.addConstraint(Sketcher.Constraint("Symmetric", 0, 3, 1, 3, -2))
sketch5.addConstraint(Sketcher.Constraint("Symmetric", 3, 3, 5, 3, -2))
sketch5.addConstraint(Sketcher.Constraint("Diameter", 0, 5.2))
sketch5.addConstraint(Sketcher.Constraint("Diameter", 3, 4.2))
sketch5.addConstraint(Sketcher.Constraint("DistanceY", 3, 3, -1, 1, 54.0))
sketch5.addConstraint(Sketcher.Constraint("DistanceY", 2, 3, 0, 3, 105.0))
sketch5.addConstraint(Sketcher.Constraint("DistanceX", 3, 3, -1, 1, 35.4))
sketch5.addConstraint(Sketcher.Constraint("DistanceX", 0, 3, 1, 3, 107.7))
sketch5.setExpression("Constraints[8]", "Params.sketch5_diameter")
sketch5.setExpression("Constraints[9]", "Params.sketch5_diameter2")
pocket3 = body.newObject("PartDesign::Pocket", "Pocket002")
pocket3.Profile = sketch5
pocket3.Type = "ThroughAll"
pocket3.Reversed = True

sketch6 = body.newObject("Sketcher::SketchObject", "Sketch005")
sketch6.AttachmentSupport = (doc.getObject("XZ_Plane"), [""])
sketch6.MapMode = "FlatFace"
sketch6.AttachmentOffset = App.Placement(V(0, 0, 5), App.Rotation())
sketch6.addGeometry(Part.Circle(V(-53.9, 52.5, 0), V(0, 0, 1), 5.5), False)
sketch6.addGeometry(Part.Circle(V(-53.9, -52.5, 0), V(0, 0, 1), 5.5), False)
sketch6.addGeometry(Part.Circle(V(-35.4, -54, 0), V(0, 0, 1), 4.6), False)
sketch6.addGeometry(Part.Circle(V(53.9, 52.5, 0), V(0, 0, 1), 5.5), False)
sketch6.addGeometry(Part.Circle(V(53.9, -52.5, 0), V(0, 0, 1), 5.5), False)
sketch6.addGeometry(Part.Circle(V(35.4, -54, 0), V(0, 0, 1), 4.6), False)
sketch6.addConstraint(Sketcher.Constraint("Equal", 0, 1))
sketch6.addConstraint(Sketcher.Constraint("Equal", 1, 3))
sketch6.addConstraint(Sketcher.Constraint("Equal", 3, 4))
sketch6.addConstraint(Sketcher.Constraint("Equal", 2, 5))
sketch6.addConstraint(Sketcher.Constraint("Symmetric", 1, 3, 3, 3, -1, 1))
sketch6.addConstraint(Sketcher.Constraint("Symmetric", 0, 3, 4, 3, -1, 1))
sketch6.addConstraint(Sketcher.Constraint("Symmetric", 0, 3, 3, 3, -2))
sketch6.addConstraint(Sketcher.Constraint("Symmetric", 2, 3, 5, 3, -2))
sketch6.addConstraint(Sketcher.Constraint("Diameter", 0, 11.0))
sketch6.addConstraint(Sketcher.Constraint("Diameter", 2, 9.2))
sketch6.addConstraint(Sketcher.Constraint("DistanceY", 2, 3, -1, 1, 54.0))
sketch6.addConstraint(Sketcher.Constraint("DistanceY", 1, 3, 0, 3, 105.0))
sketch6.addConstraint(Sketcher.Constraint("DistanceX", 2, 3, -1, 1, 35.4))
sketch6.addConstraint(Sketcher.Constraint("DistanceX", 0, 3, 3, 3, 107.7))
sketch6.setExpression("Constraints[8]", "Params.sketch6_diameter")
sketch6.setExpression("Constraints[9]", "Params.sketch6_diameter2")
pocket4 = body.newObject("PartDesign::Pocket", "Pocket003")
pocket4.Profile = sketch6
pocket4.setExpression("Length", "Params.pocket4_length")

sketch7 = body.newObject("Sketcher::SketchObject", "Sketch006")
sketch7.AttachmentSupport = (doc.getObject("XZ_Plane"), [""])
sketch7.MapMode = "FlatFace"
sketch7.AttachmentOffset = App.Placement(V(0, 0, -3), App.Rotation())
sketch7.addGeometry(Part.Circle(V(0, 0, 0), V(0, 0, 1), 22), False)
sketch7.addConstraint(Sketcher.Constraint("Coincident", 0, 3, -1, 1))
sketch7.addConstraint(Sketcher.Constraint("Diameter", 0, 45.0))
sketch7.setExpression("Constraints[1]", "Params.sketch7_diameter")
pocket5 = body.newObject("PartDesign::Pocket", "Pocket004")
pocket5.Profile = sketch7
pocket5.Type = "ThroughAll"
pocket5.Reversed = True

sketch8 = body.newObject("Sketcher::SketchObject", "Sketch007")
sketch8.AttachmentSupport = (doc.getObject("XZ_Plane"), [""])
sketch8.MapMode = "FlatFace"
sketch8.AttachmentOffset = App.Placement(V(0, 0, -3), App.Rotation())
sketch8.addGeometry(Part.Circle(V(0, 43, 0), V(0, 0, 1), 1.2), False)
sketch8.addGeometry(Part.Circle(V(0, 33, 0), V(0, 0, 1), 1.2), False)
sketch8.addGeometry(Part.Circle(V(-43, 0, 0), V(0, 0, 1), 1.2), False)
sketch8.addGeometry(Part.Circle(V(-33, 0, 0), V(0, 0, 1), 1.2), False)
sketch8.addConstraint(Sketcher.Constraint("Equal", 0, 1))
sketch8.addConstraint(Sketcher.Constraint("Equal", 1, 2))
sketch8.addConstraint(Sketcher.Constraint("Equal", 2, 3))
sketch8.addConstraint(Sketcher.Constraint("PointOnObject", 0, 3, -2))
sketch8.addConstraint(Sketcher.Constraint("PointOnObject", 1, 3, -2))
sketch8.addConstraint(Sketcher.Constraint("PointOnObject", 2, 3, -1))
sketch8.addConstraint(Sketcher.Constraint("PointOnObject", 3, 3, -1))
sketch8.addConstraint(Sketcher.Constraint("Diameter", 0, 2.5))
sketch8.addConstraint(Sketcher.Constraint("DistanceY", -1, 1, 0, 3, 43.0))
sketch8.addConstraint(Sketcher.Constraint("DistanceY", -1, 1, 1, 3, 33.0))
sketch8.addConstraint(Sketcher.Constraint("DistanceX", 2, 3, -1, 1, 43.0))
sketch8.addConstraint(Sketcher.Constraint("DistanceX", 3, 3, -1, 1, 33.0))
sketch8.setExpression("Constraints[7]", "Params.sketch8_diameter")
pocket6 = body.newObject("PartDesign::Pocket", "Pocket005")
pocket6.Profile = sketch8
pocket6.Type = "ThroughAll"
pocket6.Reversed = True

sketch9 = body.newObject("Sketcher::SketchObject", "Sketch008")
sketch9.AttachmentSupport = (doc.getObject("XZ_Plane"), [""])
sketch9.MapMode = "FlatFace"
sketch9.AttachmentOffset = App.Placement(V(0, 0, -3), App.Rotation())
sketch9.addGeometry(Part.LineSegment(V(-46.2, 57, 0), V(-46.2, 60, 0)), False)
sketch9.addGeometry(Part.LineSegment(V(-46.2, 60, 0), V(46.2, 60, 0)), False)
sketch9.addGeometry(Part.LineSegment(V(46.2, 60, 0), V(46.2, 57, 0)), False)
sketch9.addGeometry(Part.LineSegment(V(46.2, 57, 0), V(-46.2, 57, 0)), False)
sketch9.addGeometry(Part.LineSegment(V(-46.2, -60, 0), V(-46.2, -57, 0)), False)
sketch9.addGeometry(Part.LineSegment(V(-46.2, -57, 0), V(46.2, -57, 0)), False)
sketch9.addGeometry(Part.LineSegment(V(46.2, -57, 0), V(46.2, -60, 0)), False)
sketch9.addGeometry(Part.LineSegment(V(46.2, -60, 0), V(-46.2, -60, 0)), False)
sketch9.addConstraint(Sketcher.Constraint("Coincident", 0, 2, 1, 1))
sketch9.addConstraint(Sketcher.Constraint("Coincident", 1, 2, 2, 1))
sketch9.addConstraint(Sketcher.Constraint("Coincident", 2, 2, 3, 1))
sketch9.addConstraint(Sketcher.Constraint("Coincident", 3, 2, 0, 1))
sketch9.addConstraint(Sketcher.Constraint("Coincident", 4, 2, 5, 1))
sketch9.addConstraint(Sketcher.Constraint("Coincident", 5, 2, 6, 1))
sketch9.addConstraint(Sketcher.Constraint("Coincident", 6, 2, 7, 1))
sketch9.addConstraint(Sketcher.Constraint("Coincident", 7, 2, 4, 1))
sketch9.addConstraint(Sketcher.Constraint("Vertical", 0))
sketch9.addConstraint(Sketcher.Constraint("Horizontal", 1))
sketch9.addConstraint(Sketcher.Constraint("Vertical", 2))
sketch9.addConstraint(Sketcher.Constraint("Horizontal", 3))
sketch9.addConstraint(Sketcher.Constraint("Vertical", 4))
sketch9.addConstraint(Sketcher.Constraint("Horizontal", 5))
sketch9.addConstraint(Sketcher.Constraint("Vertical", 6))
sketch9.addConstraint(Sketcher.Constraint("Horizontal", 7))
sketch9.addConstraint(Sketcher.Constraint("Symmetric", 2, 2, 4, 2, -1, 1))
sketch9.addConstraint(Sketcher.Constraint("Symmetric", 0, 2, 6, 2, -1, 1))
sketch9.addConstraint(Sketcher.Constraint("Vertical", 3, 2, 4, 2))
sketch9.addConstraint(Sketcher.Constraint("DistanceY", 0, 1, 0, 2, 3.0))
sketch9.addConstraint(Sketcher.Constraint("DistanceX", 1, 1, 1, 2, 92.4))
sketch9.addConstraint(Sketcher.Constraint("DistanceY", -1, 1, 0, 2, 60.0))
sketch9.setExpression("Constraints[19]", "Params.sketch9_height")
sketch9.setExpression("Constraints[20]", "Params.sketch9_width")
pocket7 = body.newObject("PartDesign::Pocket", "Pocket006")
pocket7.Profile = sketch9
pocket7.setExpression("Length", "Params.pocket7_length")
pocket7.Reversed = True
doc.recompute()

fillet = body.newObject("PartDesign::Fillet", "Fillet")
fillet.Base = (pocket7, edges_at(pocket7, [
    (-60, 1.5, 45),
    (60, 1.5, -45),
    (60, 1.5, 45),
    (-60, 1.5, -45),
    (-46.2, 1.5, 57),
    (46.2, 1.5, 57),
    (-29.1, 1.5, -57),
    (29.1, 1.5, -57),
    (-41.7, 1.5, -57),
    (41.7, 1.5, -57),
    (46.2, 1.5, -57),
    (-46.2, 1.5, -57),
]))
fillet.setExpression("Radius", "Params.fillet_radius")

sketch10 = body.newObject("Sketcher::SketchObject", "Sketch009")
sketch10.AttachmentSupport = (doc.getObject("XZ_Plane"), [""])
sketch10.MapMode = "FlatFace"
sketch10.AttachmentOffset = App.Placement(V(0, 0, -3), App.Rotation())
sketch10.addGeometry(Part.Circle(V(-46.7, -45, 0), V(0, 0, 1), 0.5), False)
sketch10.addGeometry(Part.Circle(V(-41.2, -48, 0), V(0, 0, 1), 0.5), False)
sketch10.addGeometry(Part.Circle(V(-46.7, 45, 0), V(0, 0, 1), 0.5), False)
sketch10.addGeometry(Part.Circle(V(41.2, -48, 0), V(0, 0, 1), 0.5), False)
sketch10.addGeometry(Part.Circle(V(46.7, 45, 0), V(0, 0, 1), 0.5), False)
sketch10.addGeometry(Part.Circle(V(46.7, -45, 0), V(0, 0, 1), 0.5), False)
sketch10.addGeometry(Part.Circle(V(-29.6, -48, 0), V(0, 0, 1), 0.5), False)
sketch10.addGeometry(Part.Circle(V(29.6, -48, 0), V(0, 0, 1), 0.5), False)
sketch10.addConstraint(Sketcher.Constraint("Equal", 0, 1))
sketch10.addConstraint(Sketcher.Constraint("Equal", 1, 2))
sketch10.addConstraint(Sketcher.Constraint("Equal", 2, 3))
sketch10.addConstraint(Sketcher.Constraint("Equal", 3, 4))
sketch10.addConstraint(Sketcher.Constraint("Equal", 4, 5))
sketch10.addConstraint(Sketcher.Constraint("Equal", 5, 6))
sketch10.addConstraint(Sketcher.Constraint("Equal", 6, 7))
sketch10.addConstraint(Sketcher.Constraint("Symmetric", 0, 3, 4, 3, -1, 1))
sketch10.addConstraint(Sketcher.Constraint("Symmetric", 2, 3, 5, 3, -1, 1))
sketch10.addConstraint(Sketcher.Constraint("Symmetric", 1, 3, 3, 3, -2))
sketch10.addConstraint(Sketcher.Constraint("Symmetric", 2, 3, 4, 3, -2))
sketch10.addConstraint(Sketcher.Constraint("Symmetric", 6, 3, 7, 3, -2))
sketch10.addConstraint(Sketcher.Constraint("Horizontal", 3, 3, 6, 3))
sketch10.addConstraint(Sketcher.Constraint("Diameter", 0, 1.0))
sketch10.addConstraint(Sketcher.Constraint("DistanceY", 0, 3, -1, 1, 45.0))
sketch10.addConstraint(Sketcher.Constraint("DistanceY", 1, 3, -1, 1, 48.0))
sketch10.addConstraint(Sketcher.Constraint("DistanceX", 0, 3, -1, 1, 46.7))
sketch10.addConstraint(Sketcher.Constraint("DistanceX", 1, 3, -1, 1, 41.2))
sketch10.addConstraint(Sketcher.Constraint("DistanceX", 6, 3, -1, 1, 29.6))
sketch10.setExpression("Constraints[13]", "Params.sketch10_diameter")
pocket8 = body.newObject("PartDesign::Pocket", "Pocket007")
pocket8.Profile = sketch10
pocket8.setExpression("Length", "Params.pocket8_length")
pocket8.Reversed = True
doc.recompute()

fillet2 = body.newObject("PartDesign::Fillet", "Fillet001")
fillet2.Base = (pocket8, edges_at(pocket8, [
    (40.7, 1.5, -48),
    (-30.1, 1.5, -48),
    (-47.2, 1.5, 45),
    (-40.7, 1.5, -48),
    (47.2, 1.5, -45),
    (30.1, 1.5, -48),
    (47.2, 1.5, 45),
    (-47.2, 1.5, -45),
]))
fillet2.setExpression("Radius", "Params.fillet2_radius")

doc.recompute()
